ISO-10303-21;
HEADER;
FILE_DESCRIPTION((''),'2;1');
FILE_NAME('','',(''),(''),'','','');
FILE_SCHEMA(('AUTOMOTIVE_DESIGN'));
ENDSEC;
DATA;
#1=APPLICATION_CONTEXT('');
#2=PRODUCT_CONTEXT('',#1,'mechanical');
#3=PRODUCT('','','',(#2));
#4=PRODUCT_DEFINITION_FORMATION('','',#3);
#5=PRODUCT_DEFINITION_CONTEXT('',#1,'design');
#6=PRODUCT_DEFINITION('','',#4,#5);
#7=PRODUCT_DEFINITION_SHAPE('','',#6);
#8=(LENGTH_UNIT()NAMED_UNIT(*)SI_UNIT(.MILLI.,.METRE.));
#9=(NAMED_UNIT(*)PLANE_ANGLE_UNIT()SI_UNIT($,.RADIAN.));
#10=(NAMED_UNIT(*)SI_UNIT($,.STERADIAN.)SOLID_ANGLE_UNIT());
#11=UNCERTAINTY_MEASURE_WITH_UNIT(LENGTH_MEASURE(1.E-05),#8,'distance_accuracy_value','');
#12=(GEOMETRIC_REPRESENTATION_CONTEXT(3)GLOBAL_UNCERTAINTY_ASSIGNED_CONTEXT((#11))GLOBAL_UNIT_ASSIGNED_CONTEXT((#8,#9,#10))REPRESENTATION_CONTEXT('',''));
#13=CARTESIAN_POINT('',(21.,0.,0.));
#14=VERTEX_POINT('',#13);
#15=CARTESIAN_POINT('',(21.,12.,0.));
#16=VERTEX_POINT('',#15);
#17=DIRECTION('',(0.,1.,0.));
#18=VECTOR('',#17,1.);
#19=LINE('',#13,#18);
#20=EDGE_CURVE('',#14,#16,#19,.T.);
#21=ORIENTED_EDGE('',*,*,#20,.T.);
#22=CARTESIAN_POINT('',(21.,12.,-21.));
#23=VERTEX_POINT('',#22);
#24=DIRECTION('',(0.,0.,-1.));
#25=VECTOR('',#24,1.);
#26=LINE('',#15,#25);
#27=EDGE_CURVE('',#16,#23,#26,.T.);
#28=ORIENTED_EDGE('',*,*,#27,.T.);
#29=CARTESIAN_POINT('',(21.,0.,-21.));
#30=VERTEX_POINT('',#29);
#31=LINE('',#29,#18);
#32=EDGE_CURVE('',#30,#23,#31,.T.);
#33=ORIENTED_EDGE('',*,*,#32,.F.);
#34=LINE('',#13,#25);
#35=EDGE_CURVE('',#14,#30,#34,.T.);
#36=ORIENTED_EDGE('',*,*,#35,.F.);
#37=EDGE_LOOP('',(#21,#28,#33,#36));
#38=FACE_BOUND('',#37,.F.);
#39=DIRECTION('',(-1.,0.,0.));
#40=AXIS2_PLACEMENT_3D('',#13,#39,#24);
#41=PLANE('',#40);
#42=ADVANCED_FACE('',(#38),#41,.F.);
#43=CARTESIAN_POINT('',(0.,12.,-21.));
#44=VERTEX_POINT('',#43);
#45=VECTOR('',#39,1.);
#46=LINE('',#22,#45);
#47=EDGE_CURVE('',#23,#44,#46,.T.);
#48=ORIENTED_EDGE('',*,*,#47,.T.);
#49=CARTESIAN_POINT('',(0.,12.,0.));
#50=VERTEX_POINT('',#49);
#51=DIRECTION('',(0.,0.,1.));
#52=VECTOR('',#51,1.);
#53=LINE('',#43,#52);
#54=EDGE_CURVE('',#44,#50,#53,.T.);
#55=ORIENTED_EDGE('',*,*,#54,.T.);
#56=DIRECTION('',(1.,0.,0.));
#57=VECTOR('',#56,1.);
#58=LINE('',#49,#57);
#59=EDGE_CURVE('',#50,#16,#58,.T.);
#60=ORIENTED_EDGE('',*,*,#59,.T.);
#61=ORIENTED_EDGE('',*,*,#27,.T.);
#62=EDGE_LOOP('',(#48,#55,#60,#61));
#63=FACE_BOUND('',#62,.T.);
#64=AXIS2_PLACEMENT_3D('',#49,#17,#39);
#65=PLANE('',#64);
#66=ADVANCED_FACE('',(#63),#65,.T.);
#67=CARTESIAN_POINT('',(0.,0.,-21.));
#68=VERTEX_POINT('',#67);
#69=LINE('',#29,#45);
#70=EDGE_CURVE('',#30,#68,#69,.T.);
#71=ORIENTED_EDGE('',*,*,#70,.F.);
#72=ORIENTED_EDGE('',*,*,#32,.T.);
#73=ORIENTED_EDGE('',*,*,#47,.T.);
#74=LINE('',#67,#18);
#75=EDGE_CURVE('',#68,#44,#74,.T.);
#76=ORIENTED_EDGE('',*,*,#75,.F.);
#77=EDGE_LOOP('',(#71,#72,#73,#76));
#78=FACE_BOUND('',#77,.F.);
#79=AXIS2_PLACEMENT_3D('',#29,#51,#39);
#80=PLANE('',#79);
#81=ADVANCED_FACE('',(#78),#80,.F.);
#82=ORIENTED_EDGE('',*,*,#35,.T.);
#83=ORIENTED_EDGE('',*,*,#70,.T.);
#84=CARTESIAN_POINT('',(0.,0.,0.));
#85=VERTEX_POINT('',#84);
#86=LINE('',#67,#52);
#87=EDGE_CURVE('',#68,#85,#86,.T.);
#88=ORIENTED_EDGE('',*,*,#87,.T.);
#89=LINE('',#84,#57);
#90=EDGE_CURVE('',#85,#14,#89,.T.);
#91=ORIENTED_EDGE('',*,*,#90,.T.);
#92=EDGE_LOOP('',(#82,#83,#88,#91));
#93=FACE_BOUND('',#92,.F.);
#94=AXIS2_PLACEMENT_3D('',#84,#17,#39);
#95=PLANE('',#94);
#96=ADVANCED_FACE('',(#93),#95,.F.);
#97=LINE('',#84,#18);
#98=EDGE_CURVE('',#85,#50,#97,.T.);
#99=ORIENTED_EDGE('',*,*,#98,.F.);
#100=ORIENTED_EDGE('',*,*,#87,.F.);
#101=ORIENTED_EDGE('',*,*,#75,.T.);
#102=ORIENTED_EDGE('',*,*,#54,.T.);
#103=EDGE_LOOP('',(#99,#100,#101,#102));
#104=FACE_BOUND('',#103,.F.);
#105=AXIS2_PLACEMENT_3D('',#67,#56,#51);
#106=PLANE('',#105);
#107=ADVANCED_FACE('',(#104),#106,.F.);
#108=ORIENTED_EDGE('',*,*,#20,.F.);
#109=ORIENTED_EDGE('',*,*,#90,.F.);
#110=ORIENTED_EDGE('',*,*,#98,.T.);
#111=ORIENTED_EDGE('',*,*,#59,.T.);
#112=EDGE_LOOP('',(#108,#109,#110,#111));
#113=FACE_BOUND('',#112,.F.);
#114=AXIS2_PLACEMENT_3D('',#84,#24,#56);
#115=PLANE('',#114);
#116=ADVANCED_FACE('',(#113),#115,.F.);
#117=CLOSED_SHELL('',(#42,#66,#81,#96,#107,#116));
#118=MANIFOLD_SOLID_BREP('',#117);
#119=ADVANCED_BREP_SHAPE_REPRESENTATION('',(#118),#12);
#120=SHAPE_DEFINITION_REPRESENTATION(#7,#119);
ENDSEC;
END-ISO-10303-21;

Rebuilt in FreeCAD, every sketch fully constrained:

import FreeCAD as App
import Part
import Sketcher

V = App.Vector
Q = App.Units.Quantity


def add_polygon(sketch, points):
    """Adds a closed chain of lines whose ends are joined by coincident constraints."""
    first, n = sketch.GeometryCount, len(points)
    for a, b in zip(points, points[1:] + points[:1]):
        sketch.addGeometry(Part.LineSegment(App.Vector(*a, 0), App.Vector(*b, 0)), False)
    for i in range(n):
        sketch.addConstraint(Sketcher.Constraint("Coincident", first + i, 2, first + (i + 1) % n, 1))

doc = App.newDocument("Part")
body = doc.addObject("PartDesign::Body", "Body")

sketch1 = body.newObject("Sketcher::SketchObject", "Sketch")
sketch1.AttachmentSupport = (doc.getObject("XZ_Plane"), [""])
sketch1.MapMode = "FlatFace"
add_polygon(sketch1, [(0, -21), (0, 0), (21, 0), (21, -21)])
sketch1.addConstraint([
    Sketcher.Constraint("Vertical", 0),
    Sketcher.Constraint("Horizontal", 1),
    Sketcher.Constraint("Vertical", 2),
    Sketcher.Constraint("Horizontal", 3),
    Sketcher.Constraint("Coincident", 0, 2, -1, 1),
    Sketcher.Constraint("Equal", 3, 0),
    Sketcher.Constraint("DistanceX", 1, 1, 1, 2, Q("21 mm")),
])
pad1 = body.newObject("PartDesign::Pad", "Pad")
pad1.Profile = sketch1
pad1.Length = 12
pad1.Reversed = True

doc.recompute()
